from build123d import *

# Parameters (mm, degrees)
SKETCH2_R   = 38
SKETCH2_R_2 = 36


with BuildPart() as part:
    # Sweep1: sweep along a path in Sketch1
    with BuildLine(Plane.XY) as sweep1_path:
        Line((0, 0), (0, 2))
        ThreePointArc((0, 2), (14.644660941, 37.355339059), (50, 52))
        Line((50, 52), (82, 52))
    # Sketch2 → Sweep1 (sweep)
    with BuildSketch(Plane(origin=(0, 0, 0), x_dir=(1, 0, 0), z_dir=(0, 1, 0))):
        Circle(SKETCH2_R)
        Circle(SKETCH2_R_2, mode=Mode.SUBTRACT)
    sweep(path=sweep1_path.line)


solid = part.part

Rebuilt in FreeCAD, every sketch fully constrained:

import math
import FreeCAD as App
import Part
import Sketcher
Q = App.Units.Quantity

doc = App.newDocument("Part")
body = doc.addObject("PartDesign::Body", "Body")

# Sketch on XZ plane
sketch1 = doc.addObject("Sketcher::SketchObject", "Sketch")
body.addObject(sketch1)
sketch1.AttachmentSupport = (doc.XZ_Plane, [""])
sketch1.MapMode = "FlatFace"
sketch1.addGeometry(Part.Circle(App.Vector(0, 0, 0), App.Vector(0, 0, 1), 38), False)
sketch1.addGeometry(Part.Circle(App.Vector(0, 0, 0), App.Vector(0, 0, 1), 36), False)
sketch1.addConstraint(Sketcher.Constraint("Coincident", 0, 3, -1, 1))
sketch1.addConstraint(Sketcher.Constraint("Coincident", 1, 3, -1, 1))
sketch1.addConstraint(Sketcher.Constraint("Diameter", 0, Q("76 mm")))
sketch1.addConstraint(Sketcher.Constraint("Diameter", 1, Q("72 mm")))

# Sketch on XY plane
sketch2 = doc.addObject("Sketcher::SketchObject", "Sketch001")
body.addObject(sketch2)
sketch2.AttachmentSupport = (doc.XY_Plane, [""])
sketch2.MapMode = "FlatFace"
sketch2.addGeometry(Part.LineSegment(App.Vector(0, 0, 0), App.Vector(0, 2, 0)), False)
sketch2.addGeometry(Part.ArcOfCircle(Part.Circle(App.Vector(50, 2, 0), App.Vector(0, 0, 1), 50), math.radians(90), math.radians(180)), False)
sketch2.addGeometry(Part.LineSegment(App.Vector(50, 52, 0), App.Vector(82, 52, 0)), False)
sketch2.addConstraint(Sketcher.Constraint("Tangent", 0, 2, 1, 2))
sketch2.addConstraint(Sketcher.Constraint("Tangent", 1, 1, 2, 1))
sketch2.addConstraint(Sketcher.Constraint("Vertical", 0))
sketch2.addConstraint(Sketcher.Constraint("Horizontal", 2))
sketch2.addConstraint(Sketcher.Constraint("Coincident", 0, 1, -1, 1))
sketch2.addConstraint(Sketcher.Constraint("Radius", 1, Q("50 mm")))
sketch2.addConstraint(Sketcher.Constraint("DistanceX", 2, 1, 2, 2, Q("32 mm")))
sketch2.addConstraint(Sketcher.Constraint("DistanceY", 0, 1, 0, 2, Q("2 mm")))
doc.recompute()

additivepipe = doc.addObject("PartDesign::AdditivePipe", "AdditivePipe")
body.addObject(additivepipe)
additivepipe.Profile = sketch1
additivepipe.Spine = (sketch2, ["Edge1", "Edge2", "Edge3"])

doc.recompute()
